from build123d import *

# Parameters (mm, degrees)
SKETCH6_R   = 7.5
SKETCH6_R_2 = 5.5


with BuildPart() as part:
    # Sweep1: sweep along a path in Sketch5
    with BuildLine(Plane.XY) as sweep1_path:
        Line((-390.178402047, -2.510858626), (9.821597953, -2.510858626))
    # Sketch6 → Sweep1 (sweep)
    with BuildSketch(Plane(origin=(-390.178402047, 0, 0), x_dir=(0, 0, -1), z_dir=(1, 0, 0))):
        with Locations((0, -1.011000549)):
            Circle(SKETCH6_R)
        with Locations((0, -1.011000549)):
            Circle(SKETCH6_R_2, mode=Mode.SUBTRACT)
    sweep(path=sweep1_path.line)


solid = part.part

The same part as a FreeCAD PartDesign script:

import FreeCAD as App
import Part
import Sketcher

V = App.Vector
Q = App.Units.Quantity

doc = App.newDocument("Part")
params = doc.addObject("Spreadsheet::Sheet", "Params")
for row, (alias, value) in enumerate([
    ("sketch1_diameter", "15 mm"),
    ("sketch1_diameter2", "11 mm"),
    ("sketch2_width", "400 mm"),
], start=1):
    params.set(f"A{row}", alias)
    params.set(f"B{row}", "=" + value)
    params.setAlias(f"B{row}", alias)

body = doc.addObject("PartDesign::Body", "Body")

# Sketch on YZ plane
sketch1 = body.newObject("Sketcher::SketchObject", "Sketch")
sketch1.AttachmentSupport = (doc.getObject("YZ_Plane"), [""])
sketch1.MapMode = "FlatFace"
sketch1.AttachmentOffset = App.Placement(V(0, 0, -390.178402), App.Rotation())
sketch1.addGeometry([
    Part.Circle(V(-1, 0, 0), V(0, 0, 1), 8),
    Part.Circle(V(-1, 0, 0), V(0, 0, 1), 6),
], False)
sketch1.addConstraint([
    Sketcher.Constraint("Coincident", 1, 3, 0, 3),
    Sketcher.Constraint("PointOnObject", 0, 3, -1),
    Sketcher.Constraint("Diameter", 0, Q("15 mm")),
    Sketcher.Constraint("Diameter", 1, Q("11 mm")),
    Sketcher.Constraint("DistanceX", 0, 3, -1, 1, Q("1.011001 mm")),
])
sketch1.setExpression("Constraints[2]", "Params.sketch1_diameter")
sketch1.setExpression("Constraints[3]", "Params.sketch1_diameter2")

# Sketch on XY plane
sketch2 = body.newObject("Sketcher::SketchObject", "Sketch001")
sketch2.AttachmentSupport = (doc.getObject("XY_Plane"), [""])
sketch2.MapMode = "FlatFace"
sketch2.addGeometry(Part.LineSegment(V(-390, -3, 0), V(10, -3, 0)), False)
sketch2.addConstraint([
    Sketcher.Constraint("Horizontal", 0),
    Sketcher.Constraint("DistanceX", 0, 1, 0, 2, Q("400 mm")),
    Sketcher.Constraint("DistanceY", 0, 1, -1, 1, Q("2.510859 mm")),
    Sketcher.Constraint("DistanceX", 0, 1, -1, 1, Q("390.178402 mm")),
])
sketch2.setExpression("Constraints[1]", "Params.sketch2_width")
doc.recompute()

additivepipe = body.newObject("PartDesign::AdditivePipe", "AdditivePipe")
additivepipe.Profile = sketch1
additivepipe.Spine = (sketch2, ["Edge1"])

doc.recompute()
